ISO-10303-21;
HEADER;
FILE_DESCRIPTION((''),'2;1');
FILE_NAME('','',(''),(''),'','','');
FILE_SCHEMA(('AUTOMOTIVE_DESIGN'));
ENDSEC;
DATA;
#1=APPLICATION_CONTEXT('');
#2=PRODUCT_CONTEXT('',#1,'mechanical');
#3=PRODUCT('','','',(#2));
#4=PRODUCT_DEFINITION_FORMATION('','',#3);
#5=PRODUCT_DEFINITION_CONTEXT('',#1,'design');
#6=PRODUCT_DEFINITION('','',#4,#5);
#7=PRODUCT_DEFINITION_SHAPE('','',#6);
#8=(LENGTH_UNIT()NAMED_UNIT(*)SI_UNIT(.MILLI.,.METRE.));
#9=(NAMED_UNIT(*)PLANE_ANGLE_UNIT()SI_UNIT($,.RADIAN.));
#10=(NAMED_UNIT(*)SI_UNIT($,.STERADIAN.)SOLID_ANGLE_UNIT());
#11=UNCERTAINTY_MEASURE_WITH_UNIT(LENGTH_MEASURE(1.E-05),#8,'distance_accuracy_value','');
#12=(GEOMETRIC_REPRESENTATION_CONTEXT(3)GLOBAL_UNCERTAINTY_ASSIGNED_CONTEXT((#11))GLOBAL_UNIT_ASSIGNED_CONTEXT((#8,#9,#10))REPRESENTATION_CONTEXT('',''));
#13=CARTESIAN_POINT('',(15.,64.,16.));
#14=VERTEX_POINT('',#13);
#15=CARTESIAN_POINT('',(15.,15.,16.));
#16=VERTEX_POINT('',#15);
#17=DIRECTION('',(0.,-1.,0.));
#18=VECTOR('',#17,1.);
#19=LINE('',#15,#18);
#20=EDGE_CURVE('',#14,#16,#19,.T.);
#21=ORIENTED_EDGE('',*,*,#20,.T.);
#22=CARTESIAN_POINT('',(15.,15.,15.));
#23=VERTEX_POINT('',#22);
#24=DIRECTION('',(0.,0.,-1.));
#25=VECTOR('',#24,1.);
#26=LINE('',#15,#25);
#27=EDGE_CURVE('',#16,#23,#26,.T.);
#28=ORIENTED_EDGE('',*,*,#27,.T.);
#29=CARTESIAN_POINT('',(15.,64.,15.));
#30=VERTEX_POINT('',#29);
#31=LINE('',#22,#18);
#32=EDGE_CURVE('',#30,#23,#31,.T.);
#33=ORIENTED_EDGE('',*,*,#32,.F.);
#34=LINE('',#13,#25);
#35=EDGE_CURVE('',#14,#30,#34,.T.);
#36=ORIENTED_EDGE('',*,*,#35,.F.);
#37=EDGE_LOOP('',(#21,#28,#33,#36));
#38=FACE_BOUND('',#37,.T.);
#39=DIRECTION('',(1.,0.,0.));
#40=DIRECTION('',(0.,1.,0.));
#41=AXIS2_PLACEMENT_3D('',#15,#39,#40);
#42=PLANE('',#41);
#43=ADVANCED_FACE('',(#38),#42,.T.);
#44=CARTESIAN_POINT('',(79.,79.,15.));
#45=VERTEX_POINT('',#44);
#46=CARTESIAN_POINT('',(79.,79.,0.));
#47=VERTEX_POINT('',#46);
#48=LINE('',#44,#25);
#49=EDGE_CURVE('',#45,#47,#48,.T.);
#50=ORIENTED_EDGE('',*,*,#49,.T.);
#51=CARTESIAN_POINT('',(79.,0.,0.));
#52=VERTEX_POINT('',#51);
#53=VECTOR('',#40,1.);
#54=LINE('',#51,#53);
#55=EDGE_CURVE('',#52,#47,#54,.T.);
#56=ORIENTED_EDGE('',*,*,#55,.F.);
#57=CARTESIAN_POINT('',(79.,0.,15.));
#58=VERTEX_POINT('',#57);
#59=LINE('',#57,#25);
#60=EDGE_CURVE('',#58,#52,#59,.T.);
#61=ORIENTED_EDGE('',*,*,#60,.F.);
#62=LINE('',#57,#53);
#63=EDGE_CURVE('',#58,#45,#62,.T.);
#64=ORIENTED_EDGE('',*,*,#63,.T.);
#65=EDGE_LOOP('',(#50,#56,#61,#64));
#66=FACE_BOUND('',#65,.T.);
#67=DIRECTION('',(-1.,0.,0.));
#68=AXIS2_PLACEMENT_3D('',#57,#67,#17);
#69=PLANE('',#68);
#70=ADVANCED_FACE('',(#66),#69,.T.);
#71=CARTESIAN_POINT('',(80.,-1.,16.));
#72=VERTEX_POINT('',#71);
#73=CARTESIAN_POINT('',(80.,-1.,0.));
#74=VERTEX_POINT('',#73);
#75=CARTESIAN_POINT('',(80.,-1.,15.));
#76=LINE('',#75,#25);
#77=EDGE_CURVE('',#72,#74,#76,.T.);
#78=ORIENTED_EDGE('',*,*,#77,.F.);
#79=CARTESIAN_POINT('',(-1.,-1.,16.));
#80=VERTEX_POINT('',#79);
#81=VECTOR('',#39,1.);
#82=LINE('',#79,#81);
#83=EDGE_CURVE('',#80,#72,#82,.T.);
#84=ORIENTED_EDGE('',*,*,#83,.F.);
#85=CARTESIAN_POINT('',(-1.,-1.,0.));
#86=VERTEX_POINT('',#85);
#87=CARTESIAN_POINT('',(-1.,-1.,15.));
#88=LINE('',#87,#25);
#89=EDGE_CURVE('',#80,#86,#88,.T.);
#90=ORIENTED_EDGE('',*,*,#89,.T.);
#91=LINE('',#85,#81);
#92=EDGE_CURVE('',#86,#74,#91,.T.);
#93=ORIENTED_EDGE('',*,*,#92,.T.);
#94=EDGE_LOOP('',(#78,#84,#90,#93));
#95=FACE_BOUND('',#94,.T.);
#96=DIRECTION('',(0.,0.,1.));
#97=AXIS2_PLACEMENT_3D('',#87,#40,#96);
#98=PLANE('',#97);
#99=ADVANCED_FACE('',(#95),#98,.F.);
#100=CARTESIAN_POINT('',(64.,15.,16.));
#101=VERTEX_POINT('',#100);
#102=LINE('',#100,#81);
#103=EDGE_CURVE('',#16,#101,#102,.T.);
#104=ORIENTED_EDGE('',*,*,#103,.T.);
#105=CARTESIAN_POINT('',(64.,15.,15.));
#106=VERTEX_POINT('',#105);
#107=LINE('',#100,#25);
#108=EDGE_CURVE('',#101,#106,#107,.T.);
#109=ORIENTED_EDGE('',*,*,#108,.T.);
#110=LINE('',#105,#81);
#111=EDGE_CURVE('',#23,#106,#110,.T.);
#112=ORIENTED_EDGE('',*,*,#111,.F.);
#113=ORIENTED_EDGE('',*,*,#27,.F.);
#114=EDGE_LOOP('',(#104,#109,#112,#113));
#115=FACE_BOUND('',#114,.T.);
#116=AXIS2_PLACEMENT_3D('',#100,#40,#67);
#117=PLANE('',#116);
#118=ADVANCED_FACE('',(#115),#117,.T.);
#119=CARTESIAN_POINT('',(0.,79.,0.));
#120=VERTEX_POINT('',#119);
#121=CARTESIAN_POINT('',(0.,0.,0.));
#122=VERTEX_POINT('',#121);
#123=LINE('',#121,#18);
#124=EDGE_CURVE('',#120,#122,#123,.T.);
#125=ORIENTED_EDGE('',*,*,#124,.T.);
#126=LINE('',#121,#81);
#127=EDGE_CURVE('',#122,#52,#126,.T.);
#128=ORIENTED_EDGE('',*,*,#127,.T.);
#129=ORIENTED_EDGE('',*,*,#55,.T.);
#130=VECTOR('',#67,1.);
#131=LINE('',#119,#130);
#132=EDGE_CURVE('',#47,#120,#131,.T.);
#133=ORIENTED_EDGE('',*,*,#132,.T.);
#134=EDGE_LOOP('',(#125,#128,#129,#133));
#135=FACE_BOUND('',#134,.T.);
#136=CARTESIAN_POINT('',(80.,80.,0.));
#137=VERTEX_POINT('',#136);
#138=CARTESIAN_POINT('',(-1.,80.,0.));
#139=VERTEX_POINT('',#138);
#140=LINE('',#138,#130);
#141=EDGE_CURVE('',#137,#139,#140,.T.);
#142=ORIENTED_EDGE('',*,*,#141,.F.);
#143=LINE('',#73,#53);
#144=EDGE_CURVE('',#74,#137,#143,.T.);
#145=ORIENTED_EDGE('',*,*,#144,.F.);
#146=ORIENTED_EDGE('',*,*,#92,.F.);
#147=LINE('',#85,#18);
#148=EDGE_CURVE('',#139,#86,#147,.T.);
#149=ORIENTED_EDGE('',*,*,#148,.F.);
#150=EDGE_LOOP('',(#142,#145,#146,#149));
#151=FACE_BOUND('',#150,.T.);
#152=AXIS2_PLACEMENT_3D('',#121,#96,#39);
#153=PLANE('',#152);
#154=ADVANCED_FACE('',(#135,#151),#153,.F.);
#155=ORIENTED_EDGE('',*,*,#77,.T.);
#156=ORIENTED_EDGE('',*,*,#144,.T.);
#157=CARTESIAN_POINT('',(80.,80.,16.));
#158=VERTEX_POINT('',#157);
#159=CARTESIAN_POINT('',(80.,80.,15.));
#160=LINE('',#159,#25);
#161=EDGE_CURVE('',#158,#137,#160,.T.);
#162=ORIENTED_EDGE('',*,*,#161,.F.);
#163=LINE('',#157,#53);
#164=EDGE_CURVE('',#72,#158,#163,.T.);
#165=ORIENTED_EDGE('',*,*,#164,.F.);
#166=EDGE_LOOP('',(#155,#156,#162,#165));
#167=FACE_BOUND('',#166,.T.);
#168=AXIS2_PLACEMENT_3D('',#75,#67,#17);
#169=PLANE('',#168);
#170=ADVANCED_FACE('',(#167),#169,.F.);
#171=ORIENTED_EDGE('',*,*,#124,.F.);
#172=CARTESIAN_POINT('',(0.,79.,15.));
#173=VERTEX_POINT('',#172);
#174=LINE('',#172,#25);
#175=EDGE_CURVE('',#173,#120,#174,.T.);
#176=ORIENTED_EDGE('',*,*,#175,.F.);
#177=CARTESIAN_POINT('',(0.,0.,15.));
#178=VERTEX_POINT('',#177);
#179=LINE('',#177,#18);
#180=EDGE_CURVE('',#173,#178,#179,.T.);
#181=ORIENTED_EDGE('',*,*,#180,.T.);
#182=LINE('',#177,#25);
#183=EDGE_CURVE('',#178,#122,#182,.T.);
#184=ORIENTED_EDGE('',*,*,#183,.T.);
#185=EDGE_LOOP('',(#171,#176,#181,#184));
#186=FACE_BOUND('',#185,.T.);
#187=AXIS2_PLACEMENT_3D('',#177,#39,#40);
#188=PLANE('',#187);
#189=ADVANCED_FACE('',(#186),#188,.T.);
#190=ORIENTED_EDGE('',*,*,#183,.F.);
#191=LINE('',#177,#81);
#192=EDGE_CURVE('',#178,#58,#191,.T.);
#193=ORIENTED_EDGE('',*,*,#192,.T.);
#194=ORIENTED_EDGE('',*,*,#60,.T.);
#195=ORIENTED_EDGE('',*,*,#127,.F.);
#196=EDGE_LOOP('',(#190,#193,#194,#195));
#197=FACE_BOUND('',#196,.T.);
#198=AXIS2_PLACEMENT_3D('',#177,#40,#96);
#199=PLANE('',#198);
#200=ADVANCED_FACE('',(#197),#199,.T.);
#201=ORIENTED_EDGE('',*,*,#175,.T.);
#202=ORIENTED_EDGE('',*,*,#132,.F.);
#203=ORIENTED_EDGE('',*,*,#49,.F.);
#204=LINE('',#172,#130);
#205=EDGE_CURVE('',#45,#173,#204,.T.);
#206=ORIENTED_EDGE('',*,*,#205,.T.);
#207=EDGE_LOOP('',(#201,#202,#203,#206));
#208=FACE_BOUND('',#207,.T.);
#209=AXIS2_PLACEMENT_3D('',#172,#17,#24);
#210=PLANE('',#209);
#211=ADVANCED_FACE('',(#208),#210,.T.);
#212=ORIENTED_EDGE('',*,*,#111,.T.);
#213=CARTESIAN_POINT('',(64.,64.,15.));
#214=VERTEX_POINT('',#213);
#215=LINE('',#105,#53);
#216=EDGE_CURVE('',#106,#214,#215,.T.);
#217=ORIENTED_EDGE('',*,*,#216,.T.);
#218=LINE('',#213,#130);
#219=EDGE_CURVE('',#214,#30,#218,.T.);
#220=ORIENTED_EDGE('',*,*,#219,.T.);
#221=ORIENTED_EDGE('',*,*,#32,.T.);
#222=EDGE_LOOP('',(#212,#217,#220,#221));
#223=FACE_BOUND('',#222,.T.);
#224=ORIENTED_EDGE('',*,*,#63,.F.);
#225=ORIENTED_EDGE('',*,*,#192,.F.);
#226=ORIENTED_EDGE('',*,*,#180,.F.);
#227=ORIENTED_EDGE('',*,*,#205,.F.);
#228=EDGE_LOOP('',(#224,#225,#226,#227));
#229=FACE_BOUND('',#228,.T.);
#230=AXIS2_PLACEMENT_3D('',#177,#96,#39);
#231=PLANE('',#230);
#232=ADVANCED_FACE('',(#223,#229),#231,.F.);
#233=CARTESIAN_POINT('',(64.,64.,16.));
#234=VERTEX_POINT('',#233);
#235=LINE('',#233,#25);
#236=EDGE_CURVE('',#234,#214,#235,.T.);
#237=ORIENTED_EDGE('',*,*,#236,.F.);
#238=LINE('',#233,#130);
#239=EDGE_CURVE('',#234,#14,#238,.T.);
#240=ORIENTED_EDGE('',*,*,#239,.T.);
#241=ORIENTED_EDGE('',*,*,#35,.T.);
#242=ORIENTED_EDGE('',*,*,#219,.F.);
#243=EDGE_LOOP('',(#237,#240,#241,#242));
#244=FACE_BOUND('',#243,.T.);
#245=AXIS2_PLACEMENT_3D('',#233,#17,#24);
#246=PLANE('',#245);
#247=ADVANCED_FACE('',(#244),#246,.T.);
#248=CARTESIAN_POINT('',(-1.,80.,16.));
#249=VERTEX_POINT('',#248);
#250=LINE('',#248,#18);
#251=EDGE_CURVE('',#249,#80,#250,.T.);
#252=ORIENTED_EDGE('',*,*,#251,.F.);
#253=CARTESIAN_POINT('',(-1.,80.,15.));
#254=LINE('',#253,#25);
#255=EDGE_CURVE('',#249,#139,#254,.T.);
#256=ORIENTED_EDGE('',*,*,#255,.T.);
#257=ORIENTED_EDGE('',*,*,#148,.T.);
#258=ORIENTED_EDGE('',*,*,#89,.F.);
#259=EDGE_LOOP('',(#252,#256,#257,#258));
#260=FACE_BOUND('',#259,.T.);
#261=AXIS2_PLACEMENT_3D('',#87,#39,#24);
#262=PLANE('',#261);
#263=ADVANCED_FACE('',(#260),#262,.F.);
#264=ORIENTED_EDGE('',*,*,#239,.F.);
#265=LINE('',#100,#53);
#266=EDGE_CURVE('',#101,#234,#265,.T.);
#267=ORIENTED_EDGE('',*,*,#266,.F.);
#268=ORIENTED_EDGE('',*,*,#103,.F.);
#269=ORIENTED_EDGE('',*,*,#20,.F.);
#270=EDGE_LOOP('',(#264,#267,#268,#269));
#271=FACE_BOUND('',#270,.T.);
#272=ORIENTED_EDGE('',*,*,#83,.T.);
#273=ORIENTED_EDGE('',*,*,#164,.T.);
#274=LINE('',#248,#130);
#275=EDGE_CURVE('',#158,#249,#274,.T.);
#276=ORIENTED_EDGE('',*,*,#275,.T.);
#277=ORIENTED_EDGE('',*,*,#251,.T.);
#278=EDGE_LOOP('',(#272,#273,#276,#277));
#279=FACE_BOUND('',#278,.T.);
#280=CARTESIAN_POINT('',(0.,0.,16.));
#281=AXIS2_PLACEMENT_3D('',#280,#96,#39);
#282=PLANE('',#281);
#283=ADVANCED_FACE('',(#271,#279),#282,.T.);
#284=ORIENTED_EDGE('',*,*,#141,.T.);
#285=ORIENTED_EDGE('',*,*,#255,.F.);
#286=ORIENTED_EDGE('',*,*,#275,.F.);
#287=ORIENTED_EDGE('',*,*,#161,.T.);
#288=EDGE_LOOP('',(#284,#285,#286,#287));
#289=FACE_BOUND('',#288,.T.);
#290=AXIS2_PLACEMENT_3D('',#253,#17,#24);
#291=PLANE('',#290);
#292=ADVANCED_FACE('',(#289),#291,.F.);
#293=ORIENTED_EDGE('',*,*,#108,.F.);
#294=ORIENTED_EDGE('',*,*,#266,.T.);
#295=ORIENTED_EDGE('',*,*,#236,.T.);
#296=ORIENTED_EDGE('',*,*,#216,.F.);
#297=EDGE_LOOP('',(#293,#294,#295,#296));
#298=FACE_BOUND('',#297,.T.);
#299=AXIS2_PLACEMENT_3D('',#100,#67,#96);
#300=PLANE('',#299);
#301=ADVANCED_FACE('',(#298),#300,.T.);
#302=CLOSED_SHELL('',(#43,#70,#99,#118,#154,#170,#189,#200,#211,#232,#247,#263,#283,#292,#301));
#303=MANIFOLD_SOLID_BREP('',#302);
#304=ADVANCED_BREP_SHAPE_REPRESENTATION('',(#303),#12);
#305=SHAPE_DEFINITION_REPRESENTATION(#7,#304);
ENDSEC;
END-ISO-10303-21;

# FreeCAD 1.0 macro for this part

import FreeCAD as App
import Part
import Sketcher

V = App.Vector
Q = App.Units.Quantity

doc = App.newDocument("Part")
body = doc.addObject("PartDesign::Body", "Body")

sketch1 = body.newObject("Sketcher::SketchObject", "Sketch")
sketch1.AttachmentSupport = (doc.getObject("XY_Plane"), [""])
sketch1.MapMode = "FlatFace"
sketch1.addGeometry([
    Part.LineSegment(V(-1, 80, 0), V(-1, -1, 0)),
    Part.LineSegment(V(-1, -1, 0), V(80, -1, 0)),
    Part.LineSegment(V(80, -1, 0), V(80, 80, 0)),
    Part.LineSegment(V(80, 80, 0), V(-1, 80, 0)),
    Part.LineSegment(V(79, 0, 0), V(0, 0, 0)),
    Part.LineSegment(V(0, 0, 0), V(0, 79, 0)),
    Part.LineSegment(V(0, 79, 0), V(79, 79, 0)),
    Part.LineSegment(V(79, 79, 0), V(79, 0, 0)),
], False)
sketch1.addConstraint([
    Sketcher.Constraint("Coincident", 0, 2, 1, 1),
    Sketcher.Constraint("Coincident", 1, 2, 2, 1),
    Sketcher.Constraint("Coincident", 2, 2, 3, 1),
    Sketcher.Constraint("Coincident", 3, 2, 0, 1),
    Sketcher.Constraint("Coincident", 4, 2, 5, 1),
    Sketcher.Constraint("Coincident", 5, 2, 6, 1),
    Sketcher.Constraint("Coincident", 6, 2, 7, 1),
    Sketcher.Constraint("Coincident", 7, 2, 4, 1),
    Sketcher.Constraint("Vertical", 0),
    Sketcher.Constraint("Horizontal", 1),
    Sketcher.Constraint("Vertical", 2),
    Sketcher.Constraint("Horizontal", 3),
    Sketcher.Constraint("Horizontal", 4),
    Sketcher.Constraint("Vertical", 5),
    Sketcher.Constraint("Horizontal", 6),
    Sketcher.Constraint("Vertical", 7),
    Sketcher.Constraint("Coincident", 4, 2, -1, 1),
    Sketcher.Constraint("Equal", 3, 0),
    Sketcher.Constraint("Equal", 6, 5),
    Sketcher.Constraint("DistanceX", 1, 1, 1, 2, Q("81 mm")),
    Sketcher.Constraint("DistanceX", 4, 2, 4, 1, Q("79 mm")),
    Sketcher.Constraint("DistanceX", 0, 2, -1, 1, Q("1 mm")),
    Sketcher.Constraint("DistanceY", 0, 2, -1, 1, Q("1 mm")),
])
pad1 = body.newObject("PartDesign::Pad", "Pad")
pad1.Profile = sketch1
pad1.Length = 15

sketch2 = body.newObject("Sketcher::SketchObject", "Sketch001")
sketch2.AttachmentSupport = (doc.getObject("XY_Plane"), [""])
sketch2.MapMode = "FlatFace"
sketch2.AttachmentOffset = App.Placement(V(0, 0, 15), App.Rotation())
sketch2.addGeometry([
    Part.LineSegment(V(-1, 80, 0), V(-1, -1, 0)),
    Part.LineSegment(V(-1, -1, 0), V(80, -1, 0)),
    Part.LineSegment(V(80, -1, 0), V(80, 80, 0)),
    Part.LineSegment(V(80, 80, 0), V(-1, 80, 0)),
    Part.LineSegment(V(64, 15, 0), V(15, 15, 0)),
    Part.LineSegment(V(15, 15, 0), V(15, 64, 0)),
    Part.LineSegment(V(15, 64, 0), V(64, 64, 0)),
    Part.LineSegment(V(64, 64, 0), V(64, 15, 0)),
], False)
sketch2.addConstraint([
    Sketcher.Constraint("Coincident", 0, 2, 1, 1),
    Sketcher.Constraint("Coincident", 1, 2, 2, 1),
    Sketcher.Constraint("Coincident", 2, 2, 3, 1),
    Sketcher.Constraint("Coincident", 3, 2, 0, 1),
    Sketcher.Constraint("Coincident", 4, 2, 5, 1),
    Sketcher.Constraint("Coincident", 5, 2, 6, 1),
    Sketcher.Constraint("Coincident", 6, 2, 7, 1),
    Sketcher.Constraint("Coincident", 7, 2, 4, 1),
    Sketcher.Constraint("Vertical", 0),
    Sketcher.Constraint("Horizontal", 1),
    Sketcher.Constraint("Vertical", 2),
    Sketcher.Constraint("Horizontal", 3),
    Sketcher.Constraint("Horizontal", 4),
    Sketcher.Constraint("Vertical", 5),
    Sketcher.Constraint("Horizontal", 6),
    Sketcher.Constraint("Vertical", 7),
    Sketcher.Constraint("Equal", 3, 0),
    Sketcher.Constraint("Equal", 6, 5),
    Sketcher.Constraint("DistanceX", 1, 1, 1, 2, Q("81 mm")),
    Sketcher.Constraint("DistanceX", 4, 2, 4, 1, Q("49 mm")),
    Sketcher.Constraint("DistanceX", 0, 2, -1, 1, Q("1 mm")),
    Sketcher.Constraint("DistanceY", 0, 2, -1, 1, Q("1 mm")),
    Sketcher.Constraint("DistanceX", -1, 1, 4, 2, Q("15 mm")),
    Sketcher.Constraint("DistanceY", -1, 1, 4, 2, Q("15 mm")),
])
pad2 = body.newObject("PartDesign::Pad", "Pad001")
pad2.Profile = sketch2
pad2.Length = 1

doc.recompute()
